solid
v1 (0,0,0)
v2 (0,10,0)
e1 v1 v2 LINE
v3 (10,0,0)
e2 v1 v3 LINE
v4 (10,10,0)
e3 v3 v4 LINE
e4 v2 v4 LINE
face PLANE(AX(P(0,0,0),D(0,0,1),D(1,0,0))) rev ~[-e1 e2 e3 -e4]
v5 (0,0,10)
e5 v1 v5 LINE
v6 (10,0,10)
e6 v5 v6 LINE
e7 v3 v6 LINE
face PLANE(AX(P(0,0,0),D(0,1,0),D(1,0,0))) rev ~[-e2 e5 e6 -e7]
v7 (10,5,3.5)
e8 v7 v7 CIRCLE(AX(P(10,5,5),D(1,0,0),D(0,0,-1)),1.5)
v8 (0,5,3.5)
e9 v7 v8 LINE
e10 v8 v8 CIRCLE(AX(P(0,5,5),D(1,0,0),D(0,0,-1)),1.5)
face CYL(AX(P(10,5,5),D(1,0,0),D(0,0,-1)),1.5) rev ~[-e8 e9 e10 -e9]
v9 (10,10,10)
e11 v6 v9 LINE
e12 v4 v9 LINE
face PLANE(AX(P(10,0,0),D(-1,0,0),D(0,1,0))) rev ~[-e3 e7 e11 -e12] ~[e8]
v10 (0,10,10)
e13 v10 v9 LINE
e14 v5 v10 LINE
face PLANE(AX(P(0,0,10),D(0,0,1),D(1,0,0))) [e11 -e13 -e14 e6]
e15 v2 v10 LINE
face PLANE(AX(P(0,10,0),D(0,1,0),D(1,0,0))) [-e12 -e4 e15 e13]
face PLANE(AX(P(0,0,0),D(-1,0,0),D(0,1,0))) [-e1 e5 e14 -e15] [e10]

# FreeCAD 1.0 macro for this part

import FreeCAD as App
import Part
import Sketcher
from FreeCAD import Vector
Q = App.Units.Quantity

doc = App.newDocument("Part")
params = doc.addObject("Spreadsheet::Sheet", "Params")
for row, (alias, value) in enumerate([
    ("sketch1_width", "10 mm"),
    ("pad1_length", "10 mm"),
    ("sketch2_diameter", "3 mm"),
    ("pocket1_length", "10 mm"),
], start=1):
    params.set(f"A{row}", alias)
    params.set(f"B{row}", "=" + value)
    params.setAlias(f"B{row}", alias)

body = doc.addObject("PartDesign::Body", "Body")

# Sketch on XY plane
sketch1 = body.newObject("Sketcher::SketchObject", "Sketch")
sketch1.AttachmentSupport = (doc.getObject("XY_Plane"), [""])
sketch1.MapMode = "FlatFace"
sketch1.addGeometry(Part.LineSegment(Vector(0, 10, 0), Vector(0, 0, 0)), False)
sketch1.addGeometry(Part.LineSegment(Vector(0, 0, 0), Vector(10, 0, 0)), False)
sketch1.addGeometry(Part.LineSegment(Vector(10, 0, 0), Vector(10, 10, 0)), False)
sketch1.addGeometry(Part.LineSegment(Vector(10, 10, 0), Vector(0, 10, 0)), False)
sketch1.addConstraint(Sketcher.Constraint("Coincident", 0, 2, 1, 1))
sketch1.addConstraint(Sketcher.Constraint("Coincident", 1, 2, 2, 1))
sketch1.addConstraint(Sketcher.Constraint("Coincident", 2, 2, 3, 1))
sketch1.addConstraint(Sketcher.Constraint("Coincident", 3, 2, 0, 1))
sketch1.addConstraint(Sketcher.Constraint("Vertical", 0))
sketch1.addConstraint(Sketcher.Constraint("Horizontal", 1))
sketch1.addConstraint(Sketcher.Constraint("Vertical", 2))
sketch1.addConstraint(Sketcher.Constraint("Horizontal", 3))
sketch1.addConstraint(Sketcher.Constraint("Coincident", 0, 2, -1, 1))
sketch1.addConstraint(Sketcher.Constraint("Equal", 3, 0))
sketch1.addConstraint(Sketcher.Constraint("DistanceX", 1, 1, 1, 2, Q("10 mm")))
sketch1.setExpression("Constraints[10]", "Params.sketch1_width")
pad1 = body.newObject("PartDesign::Pad", "Pad")
pad1.Profile = sketch1
pad1.setExpression("Length", "Params.pad1_length")

# Sketch on YZ plane
sketch2 = body.newObject("Sketcher::SketchObject", "Sketch001")
sketch2.AttachmentSupport = (doc.getObject("YZ_Plane"), [""])
sketch2.MapMode = "FlatFace"
sketch2.AttachmentOffset = App.Placement(Vector(0, 0, 10), App.Rotation())
sketch2.addGeometry(Part.Circle(Vector(5, 5, 0), Vector(0, 0, 1), 1.5), False)
sketch2.addConstraint(Sketcher.Constraint("Diameter", 0, Q("3 mm")))
sketch2.addConstraint(Sketcher.Constraint("DistanceX", -1, 1, 0, 3, Q("5 mm")))
sketch2.addConstraint(Sketcher.Constraint("DistanceY", -1, 1, 0, 3, Q("5 mm")))
sketch2.setExpression("Constraints[0]", "Params.sketch2_diameter")
pocket1 = body.newObject("PartDesign::Pocket", "Pocket")
pocket1.Profile = sketch2
pocket1.setExpression("Length", "Params.pocket1_length")

doc.recompute()
